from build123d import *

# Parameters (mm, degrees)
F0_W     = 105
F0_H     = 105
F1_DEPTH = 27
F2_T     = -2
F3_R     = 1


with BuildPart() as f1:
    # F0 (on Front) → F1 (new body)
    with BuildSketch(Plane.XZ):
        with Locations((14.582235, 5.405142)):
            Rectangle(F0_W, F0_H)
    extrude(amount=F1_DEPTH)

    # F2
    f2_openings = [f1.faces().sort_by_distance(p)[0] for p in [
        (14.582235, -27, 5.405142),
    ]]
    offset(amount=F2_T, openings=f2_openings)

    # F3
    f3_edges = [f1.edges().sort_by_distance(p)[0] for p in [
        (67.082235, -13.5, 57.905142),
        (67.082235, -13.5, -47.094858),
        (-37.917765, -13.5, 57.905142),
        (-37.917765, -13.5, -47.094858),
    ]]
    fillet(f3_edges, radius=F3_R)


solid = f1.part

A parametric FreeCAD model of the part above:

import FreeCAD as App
import Part
import Sketcher

V = App.Vector
Q = App.Units.Quantity


def edges_at(feature, points):
    """Names of the edges that pass closest to the given points."""
    edges = feature.Shape.Edges
    near = lambda p: min(range(len(edges)), key=lambda i: edges[i].distToShape(Part.Vertex(*p))[0])
    return sorted({f"Edge{near(p) + 1}" for p in points})


def faces_at(feature, points):
    """Names of the faces that lie closest to the given points."""
    faces = feature.Shape.Faces
    near = lambda p: min(range(len(faces)), key=lambda i: faces[i].distToShape(Part.Vertex(*p))[0])
    return sorted({f"Face{near(p) + 1}" for p in points})

doc = App.newDocument("Part")
body = doc.addObject("PartDesign::Body", "Body")

# Sketch on XZ plane
sketch1 = doc.addObject("Sketcher::SketchObject", "Sketch")
body.addObject(sketch1)
sketch1.AttachmentSupport = (doc.XZ_Plane, [""])
sketch1.MapMode = "FlatFace"
sketch1.addGeometry(Part.LineSegment(V(-37.917765, 57.905142, 0), V(-37.917765, -47.094858, 0)), False)
sketch1.addGeometry(Part.LineSegment(V(-37.917765, -47.094858, 0), V(67.082235, -47.094858, 0)), False)
sketch1.addGeometry(Part.LineSegment(V(67.082235, -47.094858, 0), V(67.082235, 57.905142, 0)), False)
sketch1.addGeometry(Part.LineSegment(V(67.082235, 57.905142, 0), V(-37.917765, 57.905142, 0)), False)
sketch1.addConstraint(Sketcher.Constraint("Coincident", 0, 2, 1, 1))
sketch1.addConstraint(Sketcher.Constraint("Coincident", 1, 2, 2, 1))
sketch1.addConstraint(Sketcher.Constraint("Coincident", 2, 2, 3, 1))
sketch1.addConstraint(Sketcher.Constraint("Coincident", 3, 2, 0, 1))
sketch1.addConstraint(Sketcher.Constraint("Vertical", 0))
sketch1.addConstraint(Sketcher.Constraint("Horizontal", 1))
sketch1.addConstraint(Sketcher.Constraint("Vertical", 2))
sketch1.addConstraint(Sketcher.Constraint("Horizontal", 3))
sketch1.addConstraint(Sketcher.Constraint("Equal", 3, 0))
sketch1.addConstraint(Sketcher.Constraint("DistanceX", 1, 1, 1, 2, Q("105 mm")))
sketch1.addConstraint(Sketcher.Constraint("DistanceY", 0, 2, -1, 1, Q("47.094858 mm")))
sketch1.addConstraint(Sketcher.Constraint("DistanceX", 0, 2, -1, 1, Q("37.917765 mm")))
pad1 = doc.addObject("PartDesign::Pad", "Pad")
body.addObject(pad1)
pad1.Profile = sketch1
pad1.Length = 27
doc.recompute()

thickness = doc.addObject("PartDesign::Thickness", "Thickness")
body.addObject(thickness)
thickness.Base = (pad1, faces_at(pad1, [(14.582, -27, 5.405)]))
thickness.Value = 2
thickness.Reversed = True
thickness.Join = "Arc"
doc.recompute()

fillet = doc.addObject("PartDesign::Fillet", "Fillet")
body.addObject(fillet)
fillet.Base = (thickness, edges_at(thickness, [
    (67.082, -13.5, 57.905),
    (67.082, -13.5, -47.095),
    (-37.918, -13.5, 57.905),
    (-37.918, -13.5, -47.095),
]))
fillet.Radius = 1

doc.recompute()
